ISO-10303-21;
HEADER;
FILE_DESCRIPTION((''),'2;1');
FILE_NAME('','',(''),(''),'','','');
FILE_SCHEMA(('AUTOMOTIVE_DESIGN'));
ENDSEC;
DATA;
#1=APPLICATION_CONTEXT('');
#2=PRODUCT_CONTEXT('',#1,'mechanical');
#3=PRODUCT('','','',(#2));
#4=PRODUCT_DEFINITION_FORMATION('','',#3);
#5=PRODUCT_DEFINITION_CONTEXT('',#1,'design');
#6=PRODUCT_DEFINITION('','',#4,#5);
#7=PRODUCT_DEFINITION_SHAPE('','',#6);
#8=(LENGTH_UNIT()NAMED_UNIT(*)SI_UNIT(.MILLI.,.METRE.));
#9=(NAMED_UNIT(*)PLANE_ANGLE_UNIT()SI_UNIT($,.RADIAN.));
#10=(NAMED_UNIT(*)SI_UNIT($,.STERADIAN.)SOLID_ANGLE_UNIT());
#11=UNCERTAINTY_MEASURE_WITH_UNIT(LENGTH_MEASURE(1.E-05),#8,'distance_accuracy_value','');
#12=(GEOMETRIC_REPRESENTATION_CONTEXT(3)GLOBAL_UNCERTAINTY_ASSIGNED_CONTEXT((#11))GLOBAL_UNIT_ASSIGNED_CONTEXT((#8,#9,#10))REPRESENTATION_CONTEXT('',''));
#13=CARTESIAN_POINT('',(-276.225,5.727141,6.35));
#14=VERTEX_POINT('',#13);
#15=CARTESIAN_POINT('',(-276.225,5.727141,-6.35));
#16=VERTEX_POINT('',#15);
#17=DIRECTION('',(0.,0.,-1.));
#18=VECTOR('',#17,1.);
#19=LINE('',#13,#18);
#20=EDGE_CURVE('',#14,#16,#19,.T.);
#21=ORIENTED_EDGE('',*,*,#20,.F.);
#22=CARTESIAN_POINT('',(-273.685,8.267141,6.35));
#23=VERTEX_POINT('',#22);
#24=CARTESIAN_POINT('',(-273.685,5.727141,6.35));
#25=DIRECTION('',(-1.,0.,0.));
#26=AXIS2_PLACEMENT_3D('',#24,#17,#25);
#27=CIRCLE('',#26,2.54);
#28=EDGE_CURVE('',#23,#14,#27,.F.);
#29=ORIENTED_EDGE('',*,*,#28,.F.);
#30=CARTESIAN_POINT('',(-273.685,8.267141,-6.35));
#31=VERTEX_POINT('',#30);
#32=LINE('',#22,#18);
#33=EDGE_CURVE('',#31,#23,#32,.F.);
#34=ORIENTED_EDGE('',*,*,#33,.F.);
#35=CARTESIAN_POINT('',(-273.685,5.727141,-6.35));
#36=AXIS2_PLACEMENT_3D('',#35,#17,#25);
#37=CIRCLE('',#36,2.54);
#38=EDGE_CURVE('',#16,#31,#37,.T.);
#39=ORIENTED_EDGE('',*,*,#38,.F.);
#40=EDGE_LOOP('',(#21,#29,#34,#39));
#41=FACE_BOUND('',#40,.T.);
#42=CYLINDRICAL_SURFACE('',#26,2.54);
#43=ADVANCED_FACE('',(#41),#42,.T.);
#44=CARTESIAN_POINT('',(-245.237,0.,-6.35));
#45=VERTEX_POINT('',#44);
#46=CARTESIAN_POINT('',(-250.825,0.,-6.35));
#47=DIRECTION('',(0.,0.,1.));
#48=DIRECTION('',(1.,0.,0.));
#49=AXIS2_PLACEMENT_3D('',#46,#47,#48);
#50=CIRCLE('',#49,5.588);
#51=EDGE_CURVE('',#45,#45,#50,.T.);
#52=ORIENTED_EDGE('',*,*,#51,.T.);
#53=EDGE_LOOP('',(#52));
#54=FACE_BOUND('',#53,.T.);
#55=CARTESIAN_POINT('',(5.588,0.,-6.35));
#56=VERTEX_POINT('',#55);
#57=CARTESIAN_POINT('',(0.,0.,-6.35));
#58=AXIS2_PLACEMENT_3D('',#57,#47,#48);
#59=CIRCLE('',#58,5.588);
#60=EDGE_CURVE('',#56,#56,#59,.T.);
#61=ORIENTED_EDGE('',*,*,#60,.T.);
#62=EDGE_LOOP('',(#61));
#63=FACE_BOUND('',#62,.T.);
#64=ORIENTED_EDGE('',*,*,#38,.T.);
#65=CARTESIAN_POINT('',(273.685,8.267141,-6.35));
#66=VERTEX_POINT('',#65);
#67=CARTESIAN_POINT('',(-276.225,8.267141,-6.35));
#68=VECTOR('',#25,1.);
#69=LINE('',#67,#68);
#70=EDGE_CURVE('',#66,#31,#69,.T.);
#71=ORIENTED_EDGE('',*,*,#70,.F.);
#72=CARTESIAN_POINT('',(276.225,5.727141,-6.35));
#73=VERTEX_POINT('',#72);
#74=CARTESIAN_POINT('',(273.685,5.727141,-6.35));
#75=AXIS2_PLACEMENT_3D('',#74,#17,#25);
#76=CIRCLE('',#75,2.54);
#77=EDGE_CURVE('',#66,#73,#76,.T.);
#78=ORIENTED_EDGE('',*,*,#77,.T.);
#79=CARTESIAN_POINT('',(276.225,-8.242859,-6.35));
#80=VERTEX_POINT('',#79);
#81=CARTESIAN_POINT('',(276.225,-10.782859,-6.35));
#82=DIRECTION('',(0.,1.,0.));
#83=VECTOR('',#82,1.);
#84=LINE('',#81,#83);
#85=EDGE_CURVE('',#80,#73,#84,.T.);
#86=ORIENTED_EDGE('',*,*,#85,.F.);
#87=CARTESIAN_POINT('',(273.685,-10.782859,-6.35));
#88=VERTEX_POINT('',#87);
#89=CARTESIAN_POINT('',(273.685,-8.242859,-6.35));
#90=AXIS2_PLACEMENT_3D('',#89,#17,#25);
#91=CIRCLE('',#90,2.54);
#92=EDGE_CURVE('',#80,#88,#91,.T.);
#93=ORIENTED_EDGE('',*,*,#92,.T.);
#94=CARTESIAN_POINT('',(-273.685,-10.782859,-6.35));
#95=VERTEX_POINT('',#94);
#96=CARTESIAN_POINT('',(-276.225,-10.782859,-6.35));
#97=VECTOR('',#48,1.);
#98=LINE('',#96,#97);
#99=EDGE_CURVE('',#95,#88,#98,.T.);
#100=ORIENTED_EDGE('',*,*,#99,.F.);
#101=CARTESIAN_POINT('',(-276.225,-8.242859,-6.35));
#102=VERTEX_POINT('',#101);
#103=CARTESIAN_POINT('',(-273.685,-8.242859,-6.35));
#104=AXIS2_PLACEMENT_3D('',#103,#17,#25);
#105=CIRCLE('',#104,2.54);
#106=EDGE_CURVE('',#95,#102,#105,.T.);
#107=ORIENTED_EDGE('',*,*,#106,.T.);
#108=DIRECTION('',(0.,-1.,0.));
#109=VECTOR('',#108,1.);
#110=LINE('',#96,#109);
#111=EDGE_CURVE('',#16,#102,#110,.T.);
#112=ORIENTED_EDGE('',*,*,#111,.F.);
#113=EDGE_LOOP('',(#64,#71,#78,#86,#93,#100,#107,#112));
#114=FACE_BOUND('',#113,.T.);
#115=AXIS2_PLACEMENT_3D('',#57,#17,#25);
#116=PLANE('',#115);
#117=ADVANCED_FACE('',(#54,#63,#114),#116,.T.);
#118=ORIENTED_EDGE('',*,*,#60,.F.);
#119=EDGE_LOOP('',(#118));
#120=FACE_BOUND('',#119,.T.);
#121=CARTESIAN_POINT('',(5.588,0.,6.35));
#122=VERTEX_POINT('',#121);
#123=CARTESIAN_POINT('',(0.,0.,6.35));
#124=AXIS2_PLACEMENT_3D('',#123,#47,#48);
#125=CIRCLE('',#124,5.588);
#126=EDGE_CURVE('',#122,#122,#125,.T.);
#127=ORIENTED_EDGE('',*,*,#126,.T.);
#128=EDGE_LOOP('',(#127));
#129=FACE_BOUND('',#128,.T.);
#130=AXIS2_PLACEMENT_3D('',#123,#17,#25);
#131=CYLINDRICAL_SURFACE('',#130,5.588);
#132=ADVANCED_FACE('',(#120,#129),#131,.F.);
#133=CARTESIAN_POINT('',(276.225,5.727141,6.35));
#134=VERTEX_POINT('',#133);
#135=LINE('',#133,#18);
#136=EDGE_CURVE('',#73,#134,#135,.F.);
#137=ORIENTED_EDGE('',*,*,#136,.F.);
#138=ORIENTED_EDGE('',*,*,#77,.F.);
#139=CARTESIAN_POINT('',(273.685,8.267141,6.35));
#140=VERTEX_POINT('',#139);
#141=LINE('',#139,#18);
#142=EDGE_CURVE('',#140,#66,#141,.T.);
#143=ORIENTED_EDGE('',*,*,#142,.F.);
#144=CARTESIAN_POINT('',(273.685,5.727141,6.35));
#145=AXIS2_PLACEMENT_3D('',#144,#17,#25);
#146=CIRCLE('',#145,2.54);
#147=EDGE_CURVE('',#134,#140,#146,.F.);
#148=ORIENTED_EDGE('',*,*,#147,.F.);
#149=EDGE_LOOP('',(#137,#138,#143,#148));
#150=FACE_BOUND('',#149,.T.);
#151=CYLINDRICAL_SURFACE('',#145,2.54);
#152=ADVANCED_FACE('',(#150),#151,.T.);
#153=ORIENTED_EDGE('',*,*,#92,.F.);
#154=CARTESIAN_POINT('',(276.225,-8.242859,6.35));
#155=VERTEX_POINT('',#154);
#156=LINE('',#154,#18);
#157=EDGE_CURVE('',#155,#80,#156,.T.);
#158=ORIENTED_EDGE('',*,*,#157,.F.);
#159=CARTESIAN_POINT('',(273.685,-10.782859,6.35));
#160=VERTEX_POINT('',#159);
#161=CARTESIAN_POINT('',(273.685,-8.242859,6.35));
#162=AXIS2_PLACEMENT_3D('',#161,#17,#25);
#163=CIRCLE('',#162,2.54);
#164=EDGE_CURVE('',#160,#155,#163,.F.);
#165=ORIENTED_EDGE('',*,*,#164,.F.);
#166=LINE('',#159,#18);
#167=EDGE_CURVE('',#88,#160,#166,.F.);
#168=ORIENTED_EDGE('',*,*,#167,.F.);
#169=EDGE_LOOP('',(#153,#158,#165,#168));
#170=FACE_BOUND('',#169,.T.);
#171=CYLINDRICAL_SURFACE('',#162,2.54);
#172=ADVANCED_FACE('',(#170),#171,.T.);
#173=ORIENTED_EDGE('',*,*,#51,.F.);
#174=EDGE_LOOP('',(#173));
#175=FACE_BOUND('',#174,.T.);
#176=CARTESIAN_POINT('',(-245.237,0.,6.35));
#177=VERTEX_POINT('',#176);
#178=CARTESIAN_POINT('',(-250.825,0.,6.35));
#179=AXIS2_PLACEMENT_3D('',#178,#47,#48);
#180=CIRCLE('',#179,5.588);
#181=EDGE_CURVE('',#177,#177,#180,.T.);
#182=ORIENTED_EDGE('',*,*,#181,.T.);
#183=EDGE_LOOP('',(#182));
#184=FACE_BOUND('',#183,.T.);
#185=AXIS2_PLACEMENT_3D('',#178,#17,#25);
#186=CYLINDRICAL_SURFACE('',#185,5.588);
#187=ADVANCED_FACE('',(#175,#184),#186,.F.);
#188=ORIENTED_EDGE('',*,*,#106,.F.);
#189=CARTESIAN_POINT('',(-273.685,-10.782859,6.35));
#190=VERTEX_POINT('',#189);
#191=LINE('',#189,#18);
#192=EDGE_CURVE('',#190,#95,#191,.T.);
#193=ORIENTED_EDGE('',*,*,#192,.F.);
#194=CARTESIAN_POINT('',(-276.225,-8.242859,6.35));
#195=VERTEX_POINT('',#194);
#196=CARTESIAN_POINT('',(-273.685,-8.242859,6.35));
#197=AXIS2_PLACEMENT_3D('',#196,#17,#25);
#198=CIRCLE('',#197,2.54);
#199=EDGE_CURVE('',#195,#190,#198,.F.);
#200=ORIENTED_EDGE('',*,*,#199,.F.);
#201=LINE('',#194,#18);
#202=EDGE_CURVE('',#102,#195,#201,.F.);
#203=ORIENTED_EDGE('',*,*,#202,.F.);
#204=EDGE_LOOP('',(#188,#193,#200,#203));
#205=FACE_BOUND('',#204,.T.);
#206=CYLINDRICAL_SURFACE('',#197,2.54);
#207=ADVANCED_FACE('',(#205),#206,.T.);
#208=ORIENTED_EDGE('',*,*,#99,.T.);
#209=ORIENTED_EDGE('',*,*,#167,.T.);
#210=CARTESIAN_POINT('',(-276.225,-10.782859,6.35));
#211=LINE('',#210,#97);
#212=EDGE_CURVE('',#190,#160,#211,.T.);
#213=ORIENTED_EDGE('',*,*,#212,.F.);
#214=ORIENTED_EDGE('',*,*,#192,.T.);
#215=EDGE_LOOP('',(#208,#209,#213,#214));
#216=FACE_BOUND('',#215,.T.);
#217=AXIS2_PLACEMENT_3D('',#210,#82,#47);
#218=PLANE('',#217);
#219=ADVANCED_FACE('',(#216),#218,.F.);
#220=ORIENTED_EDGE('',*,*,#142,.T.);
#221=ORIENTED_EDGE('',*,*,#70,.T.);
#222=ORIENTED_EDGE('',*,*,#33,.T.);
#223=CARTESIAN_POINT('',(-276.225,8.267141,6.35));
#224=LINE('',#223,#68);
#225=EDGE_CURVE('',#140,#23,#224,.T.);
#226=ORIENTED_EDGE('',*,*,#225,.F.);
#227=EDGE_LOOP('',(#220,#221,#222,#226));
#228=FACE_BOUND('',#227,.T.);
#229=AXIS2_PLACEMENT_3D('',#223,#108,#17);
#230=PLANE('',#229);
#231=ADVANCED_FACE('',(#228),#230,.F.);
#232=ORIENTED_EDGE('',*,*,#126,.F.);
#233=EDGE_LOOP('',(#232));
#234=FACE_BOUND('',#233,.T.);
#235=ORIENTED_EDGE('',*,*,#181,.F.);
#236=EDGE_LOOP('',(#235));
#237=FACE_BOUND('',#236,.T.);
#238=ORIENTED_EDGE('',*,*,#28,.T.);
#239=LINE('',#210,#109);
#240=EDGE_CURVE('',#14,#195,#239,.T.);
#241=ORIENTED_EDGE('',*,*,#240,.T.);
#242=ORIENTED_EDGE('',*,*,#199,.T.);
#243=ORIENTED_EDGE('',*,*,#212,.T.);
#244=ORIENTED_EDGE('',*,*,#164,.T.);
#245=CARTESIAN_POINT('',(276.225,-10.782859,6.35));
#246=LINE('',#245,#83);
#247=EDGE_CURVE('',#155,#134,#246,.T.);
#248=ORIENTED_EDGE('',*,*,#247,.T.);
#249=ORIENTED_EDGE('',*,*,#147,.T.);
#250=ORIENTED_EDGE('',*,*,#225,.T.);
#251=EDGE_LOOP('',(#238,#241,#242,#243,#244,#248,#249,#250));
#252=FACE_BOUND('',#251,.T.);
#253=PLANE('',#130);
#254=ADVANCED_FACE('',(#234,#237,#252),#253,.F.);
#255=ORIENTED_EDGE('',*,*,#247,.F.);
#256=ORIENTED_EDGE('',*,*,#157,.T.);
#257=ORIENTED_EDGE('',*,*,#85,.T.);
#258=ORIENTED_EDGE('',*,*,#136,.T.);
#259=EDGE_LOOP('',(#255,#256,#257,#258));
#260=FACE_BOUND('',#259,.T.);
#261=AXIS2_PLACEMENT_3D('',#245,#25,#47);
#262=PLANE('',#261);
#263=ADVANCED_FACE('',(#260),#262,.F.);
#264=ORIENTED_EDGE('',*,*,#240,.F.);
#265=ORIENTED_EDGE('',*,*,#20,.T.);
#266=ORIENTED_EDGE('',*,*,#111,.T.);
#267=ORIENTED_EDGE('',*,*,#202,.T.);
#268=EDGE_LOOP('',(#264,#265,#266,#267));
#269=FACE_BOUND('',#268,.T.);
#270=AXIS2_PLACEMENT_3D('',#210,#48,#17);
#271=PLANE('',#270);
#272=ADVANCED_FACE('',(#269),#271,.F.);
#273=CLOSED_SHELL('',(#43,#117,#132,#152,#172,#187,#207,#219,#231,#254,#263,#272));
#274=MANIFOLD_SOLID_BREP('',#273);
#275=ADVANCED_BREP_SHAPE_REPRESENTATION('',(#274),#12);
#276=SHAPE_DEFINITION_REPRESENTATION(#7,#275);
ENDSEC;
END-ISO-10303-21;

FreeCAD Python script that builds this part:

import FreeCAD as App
import Part
import Sketcher
Q = App.Units.Quantity


def edges_at(feature, points):
    """Names of the edges that pass closest to the given points."""
    edges = feature.Shape.Edges
    near = lambda p: min(range(len(edges)), key=lambda i: edges[i].distToShape(Part.Vertex(*p))[0])
    return sorted({f"Edge{near(p) + 1}" for p in points})

doc = App.newDocument("Part")
params = doc.addObject("Spreadsheet::Sheet", "Params")
for row, (alias, value) in enumerate([
    ("sketch1_diameter", "0.44 in"),
    ("sketch1_width", "21.75 in"),
    ("sketch1_height", "0.75 in"),
    ("pad1_length", "0.5 in"),
    ("fillet_radius", "0.1 in"),
], start=1):
    params.set(f"A{row}", alias)
    params.set(f"B{row}", "=" + value)
    params.setAlias(f"B{row}", alias)

body = doc.addObject("PartDesign::Body", "Body")

# Sketch on XY plane
sketch1 = body.newObject("Sketcher::SketchObject", "Sketch")
sketch1.AttachmentSupport = (doc.getObject("XY_Plane"), [""])
sketch1.MapMode = "FlatFace"
sketch1.addGeometry([
    Part.LineSegment(App.Vector(-276, 8, 0), App.Vector(-276, -11, 0)),  # 0
    Part.LineSegment(App.Vector(-276, -11, 0), App.Vector(276, -11, 0)),  # 1
    Part.LineSegment(App.Vector(276, -11, 0), App.Vector(276, 8, 0)),  # 2
    Part.LineSegment(App.Vector(276, 8, 0), App.Vector(-276, 8, 0)),  # 3
    Part.Circle(App.Vector(-251, 0, 0), App.Vector(0, 0, 1), 6),  # 4
    Part.Circle(App.Vector(0, 0, 0), App.Vector(0, 0, 1), 6),  # 5
], False)
sketch1.addConstraint([
    Sketcher.Constraint("Coincident", 0, 2, 1, 1),
    Sketcher.Constraint("Coincident", 1, 2, 2, 1),
    Sketcher.Constraint("Coincident", 2, 2, 3, 1),
    Sketcher.Constraint("Coincident", 3, 2, 0, 1),
    Sketcher.Constraint("Vertical", 0),
    Sketcher.Constraint("Horizontal", 1),
    Sketcher.Constraint("Vertical", 2),
    Sketcher.Constraint("Horizontal", 3),
    Sketcher.Constraint("Coincident", 5, 3, -1, 1),
    Sketcher.Constraint("Equal", 4, 5),
    Sketcher.Constraint("PointOnObject", 4, 3, -1),
    Sketcher.Constraint("Diameter", 4, Q("0.44 in")),
    Sketcher.Constraint("DistanceX", 0, 2, 4, 3, Q("1 in")),
    Sketcher.Constraint("DistanceX", 1, 1, 1, 2, Q("21.75 in")),
    Sketcher.Constraint("DistanceY", 0, 2, 0, 1, Q("0.75 in")),
    Sketcher.Constraint("DistanceX", 4, 3, -1, 1, Q("9.875 in")),
    Sketcher.Constraint("DistanceY", 0, 2, -1, 1, 10.782859),
])
sketch1.setExpression("Constraints[11]", "Params.sketch1_diameter")
sketch1.setExpression("Constraints[13]", "Params.sketch1_width")
sketch1.setExpression("Constraints[14]", "Params.sketch1_height")
pad1 = body.newObject("PartDesign::Pad", "Pad")
pad1.Profile = sketch1
pad1.setExpression("Length", "Params.pad1_length")
pad1.Midplane = True
doc.recompute()

fillet = body.newObject("PartDesign::Fillet", "Fillet")
fillet.Base = (pad1, edges_at(pad1, [
    (276.225, -10.783, 0),
    (-276.225, -10.783, 0),
    (-276.225, 8.267, 0),
    (276.225, 8.267, 0),
]))
fillet.setExpression("Radius", "Params.fillet_radius")

doc.recompute()
